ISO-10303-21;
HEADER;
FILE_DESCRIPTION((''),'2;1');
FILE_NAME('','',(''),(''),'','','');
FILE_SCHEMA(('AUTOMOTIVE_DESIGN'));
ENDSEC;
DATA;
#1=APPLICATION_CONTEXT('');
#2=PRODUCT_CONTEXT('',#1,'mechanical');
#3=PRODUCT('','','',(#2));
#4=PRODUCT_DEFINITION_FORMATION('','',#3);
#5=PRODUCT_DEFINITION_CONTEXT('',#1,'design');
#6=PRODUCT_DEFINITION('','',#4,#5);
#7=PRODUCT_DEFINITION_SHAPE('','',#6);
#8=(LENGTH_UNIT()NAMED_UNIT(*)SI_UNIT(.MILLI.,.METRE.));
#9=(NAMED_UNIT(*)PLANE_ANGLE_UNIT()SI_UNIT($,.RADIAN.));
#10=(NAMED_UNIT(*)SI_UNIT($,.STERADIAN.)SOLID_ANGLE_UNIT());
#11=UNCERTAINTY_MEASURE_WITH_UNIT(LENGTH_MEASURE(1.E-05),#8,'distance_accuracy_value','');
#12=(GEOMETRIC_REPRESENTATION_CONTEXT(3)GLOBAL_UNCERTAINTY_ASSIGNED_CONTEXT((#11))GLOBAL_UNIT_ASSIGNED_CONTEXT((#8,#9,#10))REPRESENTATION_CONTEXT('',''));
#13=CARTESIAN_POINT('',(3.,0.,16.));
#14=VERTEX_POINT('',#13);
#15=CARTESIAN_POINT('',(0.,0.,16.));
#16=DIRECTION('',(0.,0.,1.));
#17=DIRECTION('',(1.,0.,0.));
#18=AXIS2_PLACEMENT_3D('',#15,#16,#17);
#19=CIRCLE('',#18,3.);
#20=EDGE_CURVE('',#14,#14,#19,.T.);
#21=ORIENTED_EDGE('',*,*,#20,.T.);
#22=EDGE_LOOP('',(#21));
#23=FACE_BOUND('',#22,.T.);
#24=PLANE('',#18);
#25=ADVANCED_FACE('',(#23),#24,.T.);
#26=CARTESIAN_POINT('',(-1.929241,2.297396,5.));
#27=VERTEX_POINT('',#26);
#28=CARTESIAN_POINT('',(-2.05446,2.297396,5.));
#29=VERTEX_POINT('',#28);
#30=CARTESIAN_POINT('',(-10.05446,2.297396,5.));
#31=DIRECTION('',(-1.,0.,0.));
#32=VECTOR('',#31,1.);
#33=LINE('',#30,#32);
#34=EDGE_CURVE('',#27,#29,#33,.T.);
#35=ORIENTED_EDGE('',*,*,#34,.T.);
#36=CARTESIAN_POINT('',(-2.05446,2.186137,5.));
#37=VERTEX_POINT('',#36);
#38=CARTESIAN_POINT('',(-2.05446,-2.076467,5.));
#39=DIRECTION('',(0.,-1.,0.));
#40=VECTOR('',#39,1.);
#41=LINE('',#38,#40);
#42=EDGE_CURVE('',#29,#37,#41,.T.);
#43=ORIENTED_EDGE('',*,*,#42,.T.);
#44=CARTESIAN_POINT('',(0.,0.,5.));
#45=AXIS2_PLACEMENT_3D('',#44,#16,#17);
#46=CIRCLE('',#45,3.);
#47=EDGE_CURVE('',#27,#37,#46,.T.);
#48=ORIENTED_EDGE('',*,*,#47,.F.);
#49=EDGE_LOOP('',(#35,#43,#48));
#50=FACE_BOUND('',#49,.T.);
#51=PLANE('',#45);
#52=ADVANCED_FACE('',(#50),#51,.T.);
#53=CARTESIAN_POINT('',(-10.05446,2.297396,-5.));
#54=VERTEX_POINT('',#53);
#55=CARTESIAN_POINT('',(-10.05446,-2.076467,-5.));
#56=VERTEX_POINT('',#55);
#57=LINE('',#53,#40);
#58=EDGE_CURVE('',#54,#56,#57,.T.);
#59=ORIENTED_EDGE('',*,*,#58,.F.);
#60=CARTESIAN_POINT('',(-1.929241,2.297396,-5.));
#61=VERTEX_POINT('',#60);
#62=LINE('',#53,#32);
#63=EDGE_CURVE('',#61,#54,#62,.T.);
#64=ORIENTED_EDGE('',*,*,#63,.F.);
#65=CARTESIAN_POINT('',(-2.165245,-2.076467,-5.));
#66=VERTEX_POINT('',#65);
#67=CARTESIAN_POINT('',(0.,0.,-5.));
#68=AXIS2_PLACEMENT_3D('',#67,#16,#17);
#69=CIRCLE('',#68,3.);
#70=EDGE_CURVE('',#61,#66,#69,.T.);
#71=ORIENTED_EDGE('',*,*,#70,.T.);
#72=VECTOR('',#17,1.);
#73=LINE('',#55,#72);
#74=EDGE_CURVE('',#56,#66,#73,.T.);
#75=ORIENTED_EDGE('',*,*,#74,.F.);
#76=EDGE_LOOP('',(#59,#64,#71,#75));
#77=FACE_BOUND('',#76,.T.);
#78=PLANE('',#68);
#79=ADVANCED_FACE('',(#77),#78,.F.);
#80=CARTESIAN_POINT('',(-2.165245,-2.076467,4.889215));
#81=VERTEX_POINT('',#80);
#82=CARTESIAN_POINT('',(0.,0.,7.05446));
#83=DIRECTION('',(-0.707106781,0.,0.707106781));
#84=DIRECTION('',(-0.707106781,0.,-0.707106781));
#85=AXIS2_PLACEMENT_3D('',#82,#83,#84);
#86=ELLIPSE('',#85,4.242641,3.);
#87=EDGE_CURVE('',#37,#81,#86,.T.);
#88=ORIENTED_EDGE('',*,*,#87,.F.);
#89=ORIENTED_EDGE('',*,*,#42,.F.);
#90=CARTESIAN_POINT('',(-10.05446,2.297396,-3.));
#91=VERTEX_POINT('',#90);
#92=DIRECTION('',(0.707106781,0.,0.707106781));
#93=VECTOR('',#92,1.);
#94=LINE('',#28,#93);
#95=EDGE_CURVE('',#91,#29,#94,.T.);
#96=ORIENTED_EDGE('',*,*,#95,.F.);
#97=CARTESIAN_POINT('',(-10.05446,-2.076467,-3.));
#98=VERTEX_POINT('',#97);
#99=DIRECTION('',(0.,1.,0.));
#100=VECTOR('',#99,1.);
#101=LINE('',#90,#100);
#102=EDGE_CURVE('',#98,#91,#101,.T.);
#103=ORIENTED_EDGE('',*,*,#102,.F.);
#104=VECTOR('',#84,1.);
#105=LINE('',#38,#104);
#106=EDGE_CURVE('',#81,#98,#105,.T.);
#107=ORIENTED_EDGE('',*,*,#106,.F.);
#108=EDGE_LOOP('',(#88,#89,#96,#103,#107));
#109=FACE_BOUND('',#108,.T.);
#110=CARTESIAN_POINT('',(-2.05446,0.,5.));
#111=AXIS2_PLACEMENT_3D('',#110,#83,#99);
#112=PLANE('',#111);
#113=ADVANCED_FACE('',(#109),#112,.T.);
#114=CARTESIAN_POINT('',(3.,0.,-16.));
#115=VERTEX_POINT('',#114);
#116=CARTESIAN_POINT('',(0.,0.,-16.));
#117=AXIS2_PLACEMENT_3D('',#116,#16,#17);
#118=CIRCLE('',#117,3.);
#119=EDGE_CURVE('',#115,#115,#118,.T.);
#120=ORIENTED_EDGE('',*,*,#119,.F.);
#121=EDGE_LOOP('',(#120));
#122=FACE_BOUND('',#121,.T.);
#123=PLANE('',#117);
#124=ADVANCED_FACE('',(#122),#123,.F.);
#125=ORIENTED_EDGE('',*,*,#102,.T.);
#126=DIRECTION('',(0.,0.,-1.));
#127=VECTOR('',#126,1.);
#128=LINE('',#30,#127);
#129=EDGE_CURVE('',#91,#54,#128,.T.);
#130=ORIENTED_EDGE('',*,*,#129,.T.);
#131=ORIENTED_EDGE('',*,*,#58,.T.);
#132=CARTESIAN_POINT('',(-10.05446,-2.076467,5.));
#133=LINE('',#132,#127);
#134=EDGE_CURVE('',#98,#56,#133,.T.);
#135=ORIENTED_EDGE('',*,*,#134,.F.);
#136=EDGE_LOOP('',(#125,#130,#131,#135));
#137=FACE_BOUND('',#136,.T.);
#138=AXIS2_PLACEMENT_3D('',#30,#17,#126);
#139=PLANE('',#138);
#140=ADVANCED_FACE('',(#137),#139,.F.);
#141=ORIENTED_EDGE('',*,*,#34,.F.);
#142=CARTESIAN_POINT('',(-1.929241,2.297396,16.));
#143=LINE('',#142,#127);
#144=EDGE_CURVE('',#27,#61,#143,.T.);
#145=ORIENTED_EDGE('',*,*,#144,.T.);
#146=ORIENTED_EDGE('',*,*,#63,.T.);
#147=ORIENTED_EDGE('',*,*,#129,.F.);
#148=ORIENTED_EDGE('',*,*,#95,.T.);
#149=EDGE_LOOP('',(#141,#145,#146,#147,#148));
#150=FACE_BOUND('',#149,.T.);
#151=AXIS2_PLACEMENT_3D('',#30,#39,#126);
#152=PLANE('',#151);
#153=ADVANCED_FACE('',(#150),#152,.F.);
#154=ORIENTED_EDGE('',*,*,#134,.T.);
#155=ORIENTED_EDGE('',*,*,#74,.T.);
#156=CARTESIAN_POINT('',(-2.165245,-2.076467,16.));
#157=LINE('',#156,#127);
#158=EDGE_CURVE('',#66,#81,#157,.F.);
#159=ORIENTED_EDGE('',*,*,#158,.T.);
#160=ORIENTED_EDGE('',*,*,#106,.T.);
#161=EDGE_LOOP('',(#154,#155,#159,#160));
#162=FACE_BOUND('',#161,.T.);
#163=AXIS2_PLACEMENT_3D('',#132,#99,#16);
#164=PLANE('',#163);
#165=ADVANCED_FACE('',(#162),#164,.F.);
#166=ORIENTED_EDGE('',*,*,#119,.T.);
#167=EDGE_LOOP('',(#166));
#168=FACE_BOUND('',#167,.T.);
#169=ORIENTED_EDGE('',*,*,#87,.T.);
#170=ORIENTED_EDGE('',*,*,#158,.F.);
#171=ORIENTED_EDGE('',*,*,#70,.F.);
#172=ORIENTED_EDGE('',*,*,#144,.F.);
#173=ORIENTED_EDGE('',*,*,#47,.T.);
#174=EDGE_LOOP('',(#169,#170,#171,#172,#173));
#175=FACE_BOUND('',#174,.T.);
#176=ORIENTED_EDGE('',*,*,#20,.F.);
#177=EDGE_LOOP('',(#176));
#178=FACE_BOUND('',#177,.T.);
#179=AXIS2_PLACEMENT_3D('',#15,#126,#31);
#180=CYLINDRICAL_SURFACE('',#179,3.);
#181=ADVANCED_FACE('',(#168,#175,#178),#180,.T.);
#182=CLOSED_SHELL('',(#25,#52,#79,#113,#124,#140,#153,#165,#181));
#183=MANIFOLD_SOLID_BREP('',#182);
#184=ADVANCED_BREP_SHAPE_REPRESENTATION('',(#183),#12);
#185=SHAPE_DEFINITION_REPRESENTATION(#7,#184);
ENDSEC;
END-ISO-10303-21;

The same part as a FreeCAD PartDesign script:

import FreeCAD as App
import Part
import Sketcher


def edges_at(feature, points):
    """Names of the edges that pass closest to the given points."""
    edges = feature.Shape.Edges
    near = lambda p: min(range(len(edges)), key=lambda i: edges[i].distToShape(Part.Vertex(*p))[0])
    return sorted({f"Edge{near(p) + 1}" for p in points})

doc = App.newDocument("Part")
params = doc.addObject("Spreadsheet::Sheet", "Params")
for row, (alias, value) in enumerate([
    ("sketch1_diameter", "6 mm"),
    ("pad1_length", "32 mm"),
    ("pad2_length", "10 mm"),
    ("chamfer_size", "8 mm"),
], start=1):
    params.set(f"A{row}", alias)
    params.set(f"B{row}", "=" + value)
    params.setAlias(f"B{row}", alias)

body = doc.addObject("PartDesign::Body", "Body")

# Sketch on XY plane
sketch1 = body.newObject("Sketcher::SketchObject", "Sketch")
sketch1.AttachmentSupport = (doc.getObject("XY_Plane"), [""])
sketch1.MapMode = "FlatFace"
sketch1.addGeometry(Part.Circle(App.Vector(0, 0, 0), App.Vector(0, 0, 1), 3), False)
sketch1.addConstraint([
    Sketcher.Constraint("Coincident", 0, 3, -1, 1),
    Sketcher.Constraint("Diameter", 0, 6.0),
])
sketch1.setExpression("Constraints[1]", "Params.sketch1_diameter")
pad1 = body.newObject("PartDesign::Pad", "Pad")
pad1.Profile = sketch1
pad1.setExpression("Length", "Params.pad1_length")
pad1.Midplane = True

# Sketch on XY plane
sketch2 = body.newObject("Sketcher::SketchObject", "Sketch001")
sketch2.AttachmentSupport = (doc.getObject("XY_Plane"), [""])
sketch2.MapMode = "FlatFace"
sketch2.addGeometry([
    Part.LineSegment(App.Vector(-10.1, 2.3, 0), App.Vector(-10.1, -2.1, 0)),
    Part.LineSegment(App.Vector(-10.1, -2.1, 0), App.Vector(0, -2.1, 0)),
    Part.LineSegment(App.Vector(0, -2.1, 0), App.Vector(0, 2.3, 0)),
    Part.LineSegment(App.Vector(0, 2.3, 0), App.Vector(-10.1, 2.3, 0)),
], False)
sketch2.addConstraint([
    Sketcher.Constraint("Coincident", 0, 2, 1, 1),
    Sketcher.Constraint("Coincident", 1, 2, 2, 1),
    Sketcher.Constraint("Coincident", 2, 2, 3, 1),
    Sketcher.Constraint("Coincident", 3, 2, 0, 1),
    Sketcher.Constraint("Vertical", 0),
    Sketcher.Constraint("Horizontal", 1),
    Sketcher.Constraint("Vertical", 2),
    Sketcher.Constraint("Horizontal", 3),
    Sketcher.Constraint("PointOnObject", 1, 2, -2),
    Sketcher.Constraint("DistanceX", 1, 1, 1, 2, 10.05446),
    Sketcher.Constraint("DistanceY", 0, 2, 0, 1, 4.373863),
    Sketcher.Constraint("DistanceY", 0, 2, -1, 1, 2.076467),
])
pad2 = body.newObject("PartDesign::Pad", "Pad001")
pad2.Profile = sketch2
pad2.setExpression("Length", "Params.pad2_length")
pad2.Midplane = True
doc.recompute()

chamfer = body.newObject("PartDesign::Chamfer", "Chamfer")
chamfer.Base = (pad2, edges_at(pad2, [(-10.054, 0.11, 5)]))
chamfer.setExpression("Size", "Params.chamfer_size")

doc.recompute()
